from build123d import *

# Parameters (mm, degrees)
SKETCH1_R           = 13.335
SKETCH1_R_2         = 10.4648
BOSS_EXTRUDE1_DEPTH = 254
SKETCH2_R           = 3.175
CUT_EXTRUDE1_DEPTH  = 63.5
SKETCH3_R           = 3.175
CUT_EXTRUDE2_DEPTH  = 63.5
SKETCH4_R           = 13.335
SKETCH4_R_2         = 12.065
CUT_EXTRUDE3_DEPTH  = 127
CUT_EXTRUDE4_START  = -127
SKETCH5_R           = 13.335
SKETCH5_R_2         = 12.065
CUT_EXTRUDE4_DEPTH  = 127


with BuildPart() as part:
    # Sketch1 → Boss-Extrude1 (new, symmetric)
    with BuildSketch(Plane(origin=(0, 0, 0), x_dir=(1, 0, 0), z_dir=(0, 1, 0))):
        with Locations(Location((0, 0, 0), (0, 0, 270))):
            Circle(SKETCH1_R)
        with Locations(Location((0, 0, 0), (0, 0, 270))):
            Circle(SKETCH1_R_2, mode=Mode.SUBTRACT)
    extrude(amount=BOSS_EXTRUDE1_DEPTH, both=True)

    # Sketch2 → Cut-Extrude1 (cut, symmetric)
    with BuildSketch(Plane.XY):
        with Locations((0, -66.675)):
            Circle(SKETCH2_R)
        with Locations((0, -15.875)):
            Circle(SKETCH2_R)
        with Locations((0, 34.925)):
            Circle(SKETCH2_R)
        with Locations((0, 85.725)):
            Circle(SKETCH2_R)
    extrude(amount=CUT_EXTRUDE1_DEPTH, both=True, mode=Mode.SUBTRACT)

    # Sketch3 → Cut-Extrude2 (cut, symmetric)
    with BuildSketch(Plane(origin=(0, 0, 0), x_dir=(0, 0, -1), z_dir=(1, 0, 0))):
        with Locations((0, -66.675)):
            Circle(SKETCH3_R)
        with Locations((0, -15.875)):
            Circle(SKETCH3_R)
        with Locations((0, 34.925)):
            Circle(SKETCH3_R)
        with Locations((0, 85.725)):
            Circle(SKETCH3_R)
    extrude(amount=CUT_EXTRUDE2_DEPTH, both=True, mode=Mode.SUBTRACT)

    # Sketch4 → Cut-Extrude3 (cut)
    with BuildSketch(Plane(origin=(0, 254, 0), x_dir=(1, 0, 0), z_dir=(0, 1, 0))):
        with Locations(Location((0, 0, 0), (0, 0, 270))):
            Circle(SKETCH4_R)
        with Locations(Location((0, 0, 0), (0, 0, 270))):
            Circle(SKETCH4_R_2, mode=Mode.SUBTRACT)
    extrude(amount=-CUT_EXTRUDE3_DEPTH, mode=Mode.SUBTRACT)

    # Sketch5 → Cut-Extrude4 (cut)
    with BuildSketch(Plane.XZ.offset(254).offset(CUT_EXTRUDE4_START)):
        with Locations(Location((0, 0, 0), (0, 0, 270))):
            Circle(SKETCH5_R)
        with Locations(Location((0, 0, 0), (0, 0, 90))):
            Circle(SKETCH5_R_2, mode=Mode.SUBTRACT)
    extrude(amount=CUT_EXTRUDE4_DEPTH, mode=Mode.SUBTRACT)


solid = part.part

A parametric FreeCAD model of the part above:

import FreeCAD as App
import Part
import Sketcher

V = App.Vector
Q = App.Units.Quantity

doc = App.newDocument("Part")
body = doc.addObject("PartDesign::Body", "Body")

# Sketch on XZ plane
sketch1 = body.newObject("Sketcher::SketchObject", "Sketch")
sketch1.AttachmentSupport = (doc.getObject("XZ_Plane"), [""])
sketch1.MapMode = "FlatFace"
sketch1.addGeometry([
    Part.Circle(V(0, 0, 0), V(0, 0, 1), 13),
    Part.Circle(V(0, 0, 0), V(0, 0, 1), 10),
], False)
sketch1.addConstraint([
    Sketcher.Constraint("Coincident", 0, 3, -1, 1),
    Sketcher.Constraint("Coincident", 1, 3, -1, 1),
    Sketcher.Constraint("Diameter", 0, Q("1.05 in")),
    Sketcher.Constraint("Diameter", 1, Q("0.824 in")),
])
pad1 = body.newObject("PartDesign::Pad", "Pad")
pad1.Profile = sketch1
pad1.Length = Q("20 in")
pad1.Midplane = True

# Sketch on XY plane
sketch2 = body.newObject("Sketcher::SketchObject", "Sketch001")
sketch2.AttachmentSupport = (doc.getObject("XY_Plane"), [""])
sketch2.MapMode = "FlatFace"
sketch2.addGeometry([
    Part.Circle(V(0, -66.7, 0), V(0, 0, 1), 3.2),
    Part.Circle(V(0, -15.9, 0), V(0, 0, 1), 3.2),
    Part.Circle(V(0, 34.9, 0), V(0, 0, 1), 3.2),
    Part.Circle(V(0, 85.7, 0), V(0, 0, 1), 3.2),
], False)
sketch2.addConstraint([
    Sketcher.Constraint("Equal", 0, 1),
    Sketcher.Constraint("Equal", 1, 2),
    Sketcher.Constraint("Equal", 2, 3),
    Sketcher.Constraint("PointOnObject", 0, 3, -2),
    Sketcher.Constraint("PointOnObject", 1, 3, -2),
    Sketcher.Constraint("PointOnObject", 2, 3, -2),
    Sketcher.Constraint("PointOnObject", 3, 3, -2),
    Sketcher.Constraint("Diameter", 0, Q("0.25 in")),
    Sketcher.Constraint("DistanceY", 0, 3, 1, 3, Q("2 in")),
    Sketcher.Constraint("DistanceY", 1, 3, 2, 3, Q("2 in")),
    Sketcher.Constraint("DistanceY", 2, 3, 3, 3, Q("2 in")),
    Sketcher.Constraint("DistanceY", 0, 3, -1, 1, Q("2.625 in")),
])
pocket1 = body.newObject("PartDesign::Pocket", "Pocket")
pocket1.Profile = sketch2
pocket1.Length = Q("5 in")
pocket1.Midplane = True

# Sketch on YZ plane
sketch3 = body.newObject("Sketcher::SketchObject", "Sketch002")
sketch3.AttachmentSupport = (doc.getObject("YZ_Plane"), [""])
sketch3.MapMode = "FlatFace"
sketch3.addGeometry([
    Part.Circle(V(-66.7, 0, 0), V(0, 0, 1), 3.2),
    Part.Circle(V(-15.9, 0, 0), V(0, 0, 1), 3.2),
    Part.Circle(V(34.9, 0, 0), V(0, 0, 1), 3.2),
    Part.Circle(V(85.7, 0, 0), V(0, 0, 1), 3.2),
], False)
sketch3.addConstraint([
    Sketcher.Constraint("Equal", 0, 1),
    Sketcher.Constraint("Equal", 1, 2),
    Sketcher.Constraint("Equal", 2, 3),
    Sketcher.Constraint("PointOnObject", 0, 3, -1),
    Sketcher.Constraint("PointOnObject", 1, 3, -1),
    Sketcher.Constraint("PointOnObject", 2, 3, -1),
    Sketcher.Constraint("PointOnObject", 3, 3, -1),
    Sketcher.Constraint("Diameter", 0, Q("0.25 in")),
    Sketcher.Constraint("DistanceX", 0, 3, 1, 3, Q("2 in")),
    Sketcher.Constraint("DistanceX", 1, 3, 2, 3, Q("2 in")),
    Sketcher.Constraint("DistanceX", 2, 3, 3, 3, Q("2 in")),
    Sketcher.Constraint("DistanceX", 0, 3, -1, 1, Q("2.625 in")),
])
pocket2 = body.newObject("PartDesign::Pocket", "Pocket001")
pocket2.Profile = sketch3
pocket2.Length = Q("5 in")
pocket2.Midplane = True

# Sketch on XZ plane
sketch4 = body.newObject("Sketcher::SketchObject", "Sketch003")
sketch4.AttachmentSupport = (doc.getObject("XZ_Plane"), [""])
sketch4.MapMode = "FlatFace"
sketch4.AttachmentOffset = App.Placement(V(0, 0, -10 * 25.4), App.Rotation())
sketch4.addGeometry([
    Part.Circle(V(0, 0, 0), V(0, 0, 1), 13),
    Part.Circle(V(0, 0, 0), V(0, 0, 1), 12),
], False)
sketch4.addConstraint([
    Sketcher.Constraint("Coincident", 0, 3, -1, 1),
    Sketcher.Constraint("Coincident", 1, 3, -1, 1),
    Sketcher.Constraint("Diameter", 0, Q("1.05 in")),
    Sketcher.Constraint("Diameter", 1, Q("0.95 in")),
])
pocket3 = body.newObject("PartDesign::Pocket", "Pocket002")
pocket3.Profile = sketch4
pocket3.Length = Q("5 in")
pocket3.Reversed = True

# Sketch on XZ plane
sketch5 = body.newObject("Sketcher::SketchObject", "Sketch004")
sketch5.AttachmentSupport = (doc.getObject("XZ_Plane"), [""])
sketch5.MapMode = "FlatFace"
sketch5.AttachmentOffset = App.Placement(V(0, 0, 5 * 25.4), App.Rotation())
sketch5.addGeometry([
    Part.Circle(V(0, 0, 0), V(0, 0, 1), 13),
    Part.Circle(V(0, 0, 0), V(0, 0, 1), 12),
], False)
sketch5.addConstraint([
    Sketcher.Constraint("Coincident", 0, 3, -1, 1),
    Sketcher.Constraint("Coincident", 1, 3, -1, 1),
    Sketcher.Constraint("Diameter", 0, Q("1.05 in")),
    Sketcher.Constraint("Diameter", 1, Q("0.95 in")),
])
pocket4 = body.newObject("PartDesign::Pocket", "Pocket003")
pocket4.Profile = sketch5
pocket4.Length = Q("5 in")
pocket4.Reversed = True

doc.recompute()
